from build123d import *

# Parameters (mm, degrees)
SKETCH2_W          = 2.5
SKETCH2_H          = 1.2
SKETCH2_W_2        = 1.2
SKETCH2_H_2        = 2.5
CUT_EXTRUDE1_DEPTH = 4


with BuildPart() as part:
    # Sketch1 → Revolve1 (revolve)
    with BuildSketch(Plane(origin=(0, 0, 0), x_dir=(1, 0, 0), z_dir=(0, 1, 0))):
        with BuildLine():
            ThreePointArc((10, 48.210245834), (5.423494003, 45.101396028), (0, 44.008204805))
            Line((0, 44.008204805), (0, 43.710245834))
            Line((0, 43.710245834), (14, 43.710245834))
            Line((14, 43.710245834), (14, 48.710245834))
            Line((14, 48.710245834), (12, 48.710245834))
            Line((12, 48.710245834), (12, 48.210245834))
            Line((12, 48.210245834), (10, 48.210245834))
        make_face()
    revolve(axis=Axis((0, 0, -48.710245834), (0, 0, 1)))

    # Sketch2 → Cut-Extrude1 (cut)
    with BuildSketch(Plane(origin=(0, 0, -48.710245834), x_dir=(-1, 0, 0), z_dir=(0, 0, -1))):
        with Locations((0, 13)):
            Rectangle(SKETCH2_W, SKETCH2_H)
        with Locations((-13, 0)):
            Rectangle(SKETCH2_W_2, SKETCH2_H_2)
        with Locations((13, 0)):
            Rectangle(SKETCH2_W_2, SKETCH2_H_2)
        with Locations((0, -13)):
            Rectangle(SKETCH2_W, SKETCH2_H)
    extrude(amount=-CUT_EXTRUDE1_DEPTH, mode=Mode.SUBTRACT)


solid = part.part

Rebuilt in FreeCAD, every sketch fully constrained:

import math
import FreeCAD as App
import Part
import Sketcher
from FreeCAD import Vector
Q = App.Units.Quantity


def add_polygon(sketch, points):
    """Adds a closed chain of lines whose ends are joined by coincident constraints."""
    first, n = sketch.GeometryCount, len(points)
    for a, b in zip(points, points[1:] + points[:1]):
        sketch.addGeometry(Part.LineSegment(App.Vector(*a, 0), App.Vector(*b, 0)), False)
    for i in range(n):
        sketch.addConstraint(Sketcher.Constraint("Coincident", first + i, 2, first + (i + 1) % n, 1))

doc = App.newDocument("Part")
body = doc.addObject("PartDesign::Body", "Body")

# Sketch on XZ plane
sketch1 = body.newObject("Sketcher::SketchObject", "Sketch")
sketch1.AttachmentSupport = (doc.getObject("XZ_Plane"), [""])
sketch1.MapMode = "FlatFace"
sketch1.addGeometry([
    Part.ArcOfCircle(Part.Circle(Vector(0, -58.008205, 0), Vector(0, 0, 1), 14), math.radians(44.415309), math.radians(90)),  # 0
    Part.LineSegment(Vector(0, -44.008205, 0), Vector(0, -43.710246, 0)),  # 1
    Part.LineSegment(Vector(0, -43.710246, 0), Vector(14, -43.710246, 0)),  # 2
    Part.LineSegment(Vector(14, -43.710246, 0), Vector(14, -48.710246, 0)),  # 3
    Part.LineSegment(Vector(14, -48.710246, 0), Vector(12, -48.710246, 0)),  # 4
    Part.LineSegment(Vector(12, -48.710246, 0), Vector(12, -48.210246, 0)),  # 5
    Part.LineSegment(Vector(12, -48.210246, 0), Vector(10, -48.210246, 0)),  # 6
], False)
sketch1.addConstraint([
    Sketcher.Constraint("Coincident", 0, 2, 1, 1),
    Sketcher.Constraint("Coincident", 1, 2, 2, 1),
    Sketcher.Constraint("Coincident", 2, 2, 3, 1),
    Sketcher.Constraint("Coincident", 3, 2, 4, 1),
    Sketcher.Constraint("Coincident", 4, 2, 5, 1),
    Sketcher.Constraint("Coincident", 5, 2, 6, 1),
    Sketcher.Constraint("Coincident", 6, 2, 0, 1),
    Sketcher.Constraint("Vertical", 1),
    Sketcher.Constraint("Horizontal", 2),
    Sketcher.Constraint("Vertical", 3),
    Sketcher.Constraint("Horizontal", 4),
    Sketcher.Constraint("Vertical", 5),
    Sketcher.Constraint("Horizontal", 6),
    Sketcher.Constraint("PointOnObject", 0, 3, -2),
    Sketcher.Constraint("PointOnObject", 0, 2, -2),
    Sketcher.Constraint("Equal", 4, 6),
    Sketcher.Constraint("Radius", 0, Q("14 mm")),
    Sketcher.Constraint("DistanceX", 2, 1, 2, 2, Q("14 mm")),
    Sketcher.Constraint("DistanceX", 4, 2, 4, 1, Q("2 mm")),
    Sketcher.Constraint("DistanceY", 3, 2, 3, 1, Q("5 mm")),
    Sketcher.Constraint("DistanceY", 5, 1, 5, 2, Q("0.5 mm")),
    Sketcher.Constraint("DistanceY", 0, 3, -1, 1, Q("58.008205 mm")),
])
revolution = body.newObject("PartDesign::Revolution", "Revolution")
revolution.Profile = sketch1
revolution.ReferenceAxis = (sketch1, ["V_Axis"])
revolution.Angle = 360

# Sketch on XY plane
sketch2 = body.newObject("Sketcher::SketchObject", "Sketch001")
sketch2.AttachmentSupport = (doc.getObject("XY_Plane"), [""])
sketch2.MapMode = "FlatFace"
sketch2.AttachmentOffset = App.Placement(Vector(0, 0, -48.710246), App.Rotation())
add_polygon(sketch2, [(1.25, 13.6), (1.25, 12.4), (-1.25, 12.4), (-1.25, 13.6)])  # lines 0-3
add_polygon(sketch2, [(13.6, 1.25), (13.6, -1.25), (12.4, -1.25), (12.4, 1.25)])  # lines 4-7
add_polygon(sketch2, [(-12.4, 1.25), (-12.4, -1.25), (-13.6, -1.25), (-13.6, 1.25)])  # lines 8-11
add_polygon(sketch2, [(1.25, -12.4), (1.25, -13.6), (-1.25, -13.6), (-1.25, -12.4)])  # lines 12-15
sketch2.addConstraint([
    Sketcher.Constraint("Vertical", 0),
    Sketcher.Constraint("Horizontal", 1),
    Sketcher.Constraint("Vertical", 2),
    Sketcher.Constraint("Horizontal", 3),
    Sketcher.Constraint("Vertical", 4),
    Sketcher.Constraint("Horizontal", 5),
    Sketcher.Constraint("Vertical", 6),
    Sketcher.Constraint("Horizontal", 7),
    Sketcher.Constraint("Vertical", 8),
    Sketcher.Constraint("Horizontal", 9),
    Sketcher.Constraint("Vertical", 10),
    Sketcher.Constraint("Horizontal", 11),
    Sketcher.Constraint("Vertical", 12),
    Sketcher.Constraint("Horizontal", 13),
    Sketcher.Constraint("Vertical", 14),
    Sketcher.Constraint("Horizontal", 15),
    Sketcher.Constraint("Symmetric", 6, 2, 8, 2, -1, 1),
    Sketcher.Constraint("Symmetric", 4, 2, 10, 2, -1, 1),
    Sketcher.Constraint("Symmetric", 2, 2, 12, 2, -1, 1),
    Sketcher.Constraint("Symmetric", 0, 2, 14, 2, -1, 1),
    Sketcher.Constraint("Horizontal", 5, 2, 8, 2),
    Sketcher.Constraint("Vertical", 3, 2, 12, 2),
    Sketcher.Constraint("Equal", 11, 0),
    Sketcher.Constraint("Equal", 15, 4),
    Sketcher.Constraint("DistanceX", 1, 2, 1, 1, Q("2.5 mm")),
    Sketcher.Constraint("DistanceX", 5, 2, 5, 1, Q("1.2 mm")),
    Sketcher.Constraint("DistanceY", -1, 1, 0, 2, Q("12.4 mm")),
    Sketcher.Constraint("DistanceX", -1, 1, 4, 2, Q("13.6 mm")),
])
pocket1 = body.newObject("PartDesign::Pocket", "Pocket")
pocket1.Profile = sketch2
pocket1.Length = 4
pocket1.Reversed = True

doc.recompute()
